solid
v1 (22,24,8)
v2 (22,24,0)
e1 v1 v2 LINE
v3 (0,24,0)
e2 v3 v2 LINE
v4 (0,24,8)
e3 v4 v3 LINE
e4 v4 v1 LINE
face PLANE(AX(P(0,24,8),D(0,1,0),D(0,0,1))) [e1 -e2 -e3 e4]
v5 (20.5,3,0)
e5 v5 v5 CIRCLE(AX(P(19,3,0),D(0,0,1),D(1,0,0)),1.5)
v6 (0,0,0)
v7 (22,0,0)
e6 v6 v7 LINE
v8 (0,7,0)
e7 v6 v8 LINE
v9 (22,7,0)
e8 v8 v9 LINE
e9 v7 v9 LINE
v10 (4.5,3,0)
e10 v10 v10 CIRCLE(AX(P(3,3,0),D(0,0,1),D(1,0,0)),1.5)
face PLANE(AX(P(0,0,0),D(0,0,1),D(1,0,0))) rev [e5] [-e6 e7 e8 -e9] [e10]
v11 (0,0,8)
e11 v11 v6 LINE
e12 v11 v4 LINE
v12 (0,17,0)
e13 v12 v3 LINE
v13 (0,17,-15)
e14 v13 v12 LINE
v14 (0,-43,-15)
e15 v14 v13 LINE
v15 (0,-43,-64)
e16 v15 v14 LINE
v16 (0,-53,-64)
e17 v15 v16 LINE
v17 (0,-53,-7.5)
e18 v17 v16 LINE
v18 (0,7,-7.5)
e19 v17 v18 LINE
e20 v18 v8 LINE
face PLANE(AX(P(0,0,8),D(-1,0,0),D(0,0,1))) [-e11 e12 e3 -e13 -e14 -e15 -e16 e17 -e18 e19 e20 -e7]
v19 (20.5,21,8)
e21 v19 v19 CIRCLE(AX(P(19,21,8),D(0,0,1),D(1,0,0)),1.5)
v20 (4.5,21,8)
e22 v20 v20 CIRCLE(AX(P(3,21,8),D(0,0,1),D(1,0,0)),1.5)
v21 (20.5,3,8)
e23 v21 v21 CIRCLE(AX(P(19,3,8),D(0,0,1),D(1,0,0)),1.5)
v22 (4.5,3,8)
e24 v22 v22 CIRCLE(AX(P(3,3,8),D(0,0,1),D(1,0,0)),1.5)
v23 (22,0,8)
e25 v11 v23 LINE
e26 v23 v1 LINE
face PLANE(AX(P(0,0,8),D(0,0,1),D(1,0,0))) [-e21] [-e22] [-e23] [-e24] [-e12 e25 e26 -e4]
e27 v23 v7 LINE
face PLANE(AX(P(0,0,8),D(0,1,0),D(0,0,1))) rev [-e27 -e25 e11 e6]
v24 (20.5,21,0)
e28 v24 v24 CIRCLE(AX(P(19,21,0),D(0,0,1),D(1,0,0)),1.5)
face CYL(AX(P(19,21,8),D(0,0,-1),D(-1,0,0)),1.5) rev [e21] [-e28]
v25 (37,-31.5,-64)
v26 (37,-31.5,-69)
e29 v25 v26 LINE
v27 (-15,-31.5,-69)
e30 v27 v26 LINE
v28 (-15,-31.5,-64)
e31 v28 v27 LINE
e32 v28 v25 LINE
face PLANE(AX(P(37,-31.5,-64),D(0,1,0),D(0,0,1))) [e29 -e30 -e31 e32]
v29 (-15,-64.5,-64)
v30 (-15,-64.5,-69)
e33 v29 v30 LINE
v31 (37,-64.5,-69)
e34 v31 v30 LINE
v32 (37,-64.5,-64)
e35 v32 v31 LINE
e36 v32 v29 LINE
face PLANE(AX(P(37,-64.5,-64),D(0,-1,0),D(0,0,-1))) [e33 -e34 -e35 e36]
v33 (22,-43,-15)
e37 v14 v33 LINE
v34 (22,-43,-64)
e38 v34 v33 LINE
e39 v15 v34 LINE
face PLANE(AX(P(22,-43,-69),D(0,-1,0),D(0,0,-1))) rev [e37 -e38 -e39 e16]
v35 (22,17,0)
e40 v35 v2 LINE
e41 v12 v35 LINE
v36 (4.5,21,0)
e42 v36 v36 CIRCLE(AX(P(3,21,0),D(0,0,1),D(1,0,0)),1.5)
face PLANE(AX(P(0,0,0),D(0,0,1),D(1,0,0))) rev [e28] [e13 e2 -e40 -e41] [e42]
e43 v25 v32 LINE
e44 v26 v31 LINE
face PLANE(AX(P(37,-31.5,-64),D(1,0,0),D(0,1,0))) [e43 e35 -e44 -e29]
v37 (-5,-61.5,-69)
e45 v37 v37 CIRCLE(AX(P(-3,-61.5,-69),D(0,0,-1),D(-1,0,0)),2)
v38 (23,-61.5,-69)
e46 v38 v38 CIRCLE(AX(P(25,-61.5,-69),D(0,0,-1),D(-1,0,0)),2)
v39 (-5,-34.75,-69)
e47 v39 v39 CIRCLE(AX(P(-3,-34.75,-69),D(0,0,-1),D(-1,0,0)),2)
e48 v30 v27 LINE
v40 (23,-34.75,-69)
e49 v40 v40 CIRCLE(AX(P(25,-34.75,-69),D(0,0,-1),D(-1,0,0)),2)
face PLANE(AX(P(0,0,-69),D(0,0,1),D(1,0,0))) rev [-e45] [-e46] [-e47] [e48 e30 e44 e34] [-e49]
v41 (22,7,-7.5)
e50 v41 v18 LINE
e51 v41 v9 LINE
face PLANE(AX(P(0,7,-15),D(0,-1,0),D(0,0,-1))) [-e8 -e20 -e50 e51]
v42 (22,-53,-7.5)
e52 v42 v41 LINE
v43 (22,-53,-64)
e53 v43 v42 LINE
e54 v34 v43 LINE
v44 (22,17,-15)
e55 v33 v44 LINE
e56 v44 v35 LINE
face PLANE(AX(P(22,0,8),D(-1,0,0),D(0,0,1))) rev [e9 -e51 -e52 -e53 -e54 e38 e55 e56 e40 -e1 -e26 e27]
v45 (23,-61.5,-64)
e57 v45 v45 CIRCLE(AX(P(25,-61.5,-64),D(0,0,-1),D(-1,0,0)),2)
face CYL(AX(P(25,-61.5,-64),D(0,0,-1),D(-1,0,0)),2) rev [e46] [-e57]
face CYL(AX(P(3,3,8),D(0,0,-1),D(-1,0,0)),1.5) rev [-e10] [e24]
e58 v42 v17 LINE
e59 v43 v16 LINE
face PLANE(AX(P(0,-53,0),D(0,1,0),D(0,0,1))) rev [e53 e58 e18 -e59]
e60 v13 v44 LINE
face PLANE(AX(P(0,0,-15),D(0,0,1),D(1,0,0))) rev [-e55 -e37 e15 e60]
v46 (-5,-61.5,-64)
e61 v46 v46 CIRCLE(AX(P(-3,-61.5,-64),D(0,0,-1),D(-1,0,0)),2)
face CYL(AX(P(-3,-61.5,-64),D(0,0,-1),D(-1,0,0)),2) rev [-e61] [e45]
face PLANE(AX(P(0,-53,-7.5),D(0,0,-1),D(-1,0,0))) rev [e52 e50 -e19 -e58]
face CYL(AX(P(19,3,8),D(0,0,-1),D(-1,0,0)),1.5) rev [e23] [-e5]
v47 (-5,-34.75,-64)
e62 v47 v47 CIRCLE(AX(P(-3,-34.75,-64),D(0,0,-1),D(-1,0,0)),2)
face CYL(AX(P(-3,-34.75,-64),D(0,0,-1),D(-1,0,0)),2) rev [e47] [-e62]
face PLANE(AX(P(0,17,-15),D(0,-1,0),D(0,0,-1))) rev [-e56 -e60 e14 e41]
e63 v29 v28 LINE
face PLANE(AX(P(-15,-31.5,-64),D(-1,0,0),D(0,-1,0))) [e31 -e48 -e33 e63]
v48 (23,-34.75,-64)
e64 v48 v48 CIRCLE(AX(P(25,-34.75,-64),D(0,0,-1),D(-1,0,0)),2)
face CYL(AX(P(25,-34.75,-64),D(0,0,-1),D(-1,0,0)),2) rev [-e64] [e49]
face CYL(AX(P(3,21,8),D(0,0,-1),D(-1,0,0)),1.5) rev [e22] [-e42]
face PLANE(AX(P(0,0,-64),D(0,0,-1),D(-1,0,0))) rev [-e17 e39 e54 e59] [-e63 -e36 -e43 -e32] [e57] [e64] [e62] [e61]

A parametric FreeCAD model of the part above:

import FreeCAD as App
import Part
import Sketcher
Q = App.Units.Quantity

doc = App.newDocument("Part")
body = doc.addObject("PartDesign::Body", "Body")

sketch1 = body.newObject("Sketcher::SketchObject", "Sketch")
sketch1.AttachmentSupport = (doc.getObject("XY_Plane"), [""])
sketch1.MapMode = "FlatFace"
sketch1.addGeometry([
    Part.LineSegment(App.Vector(0, 24, 0), App.Vector(0, 0, 0)),
    Part.LineSegment(App.Vector(0, 0, 0), App.Vector(22, 0, 0)),
    Part.LineSegment(App.Vector(22, 0, 0), App.Vector(22, 24, 0)),
    Part.LineSegment(App.Vector(22, 24, 0), App.Vector(0, 24, 0)),
    Part.Circle(App.Vector(3, 21, 0), App.Vector(0, 0, 1), 1.5),
    Part.Circle(App.Vector(19, 21, 0), App.Vector(0, 0, 1), 1.5),
    Part.Circle(App.Vector(19, 3, 0), App.Vector(0, 0, 1), 1.5),
    Part.Circle(App.Vector(3, 3, 0), App.Vector(0, 0, 1), 1.5),
], False)
sketch1.addConstraint([
    Sketcher.Constraint("Coincident", 0, 2, 1, 1),
    Sketcher.Constraint("Coincident", 1, 2, 2, 1),
    Sketcher.Constraint("Coincident", 2, 2, 3, 1),
    Sketcher.Constraint("Coincident", 3, 2, 0, 1),
    Sketcher.Constraint("Vertical", 0),
    Sketcher.Constraint("Horizontal", 1),
    Sketcher.Constraint("Vertical", 2),
    Sketcher.Constraint("Horizontal", 3),
    Sketcher.Constraint("Coincident", 0, 2, -1, 1),
    Sketcher.Constraint("Equal", 4, 5),
    Sketcher.Constraint("Equal", 5, 6),
    Sketcher.Constraint("Equal", 6, 7),
    Sketcher.Constraint("Horizontal", 4, 3, 5, 3),
    Sketcher.Constraint("Horizontal", 6, 3, 7, 3),
    Sketcher.Constraint("Vertical", 5, 3, 6, 3),
    Sketcher.Constraint("Vertical", 4, 3, 7, 3),
    Sketcher.Constraint("Diameter", 4, Q("3 mm")),
    Sketcher.Constraint("DistanceX", 1, 1, 1, 2, Q("22 mm")),
    Sketcher.Constraint("DistanceY", 0, 2, 0, 1, Q("24 mm")),
    Sketcher.Constraint("DistanceX", -1, 1, 4, 3, Q("3 mm")),
    Sketcher.Constraint("DistanceY", -1, 1, 4, 3, Q("21 mm")),
    Sketcher.Constraint("DistanceX", -1, 1, 5, 3, Q("19 mm")),
    Sketcher.Constraint("DistanceY", -1, 1, 6, 3, Q("3 mm")),
])
pad1 = body.newObject("PartDesign::Pad", "Pad")
pad1.Profile = sketch1
pad1.Length = 8

sketch2 = body.newObject("Sketcher::SketchObject", "Sketch001")
sketch2.AttachmentSupport = (doc.getObject("XY_Plane"), [""])
sketch2.MapMode = "FlatFace"
sketch2.addGeometry([
    Part.LineSegment(App.Vector(0, 17, 0), App.Vector(0, 7, 0)),
    Part.LineSegment(App.Vector(0, 7, 0), App.Vector(22, 7, 0)),
    Part.LineSegment(App.Vector(22, 7, 0), App.Vector(22, 17, 0)),
    Part.LineSegment(App.Vector(22, 17, 0), App.Vector(0, 17, 0)),
], False)
sketch2.addConstraint([
    Sketcher.Constraint("Coincident", 0, 2, 1, 1),
    Sketcher.Constraint("Coincident", 1, 2, 2, 1),
    Sketcher.Constraint("Coincident", 2, 2, 3, 1),
    Sketcher.Constraint("Coincident", 3, 2, 0, 1),
    Sketcher.Constraint("Vertical", 0),
    Sketcher.Constraint("Horizontal", 1),
    Sketcher.Constraint("Vertical", 2),
    Sketcher.Constraint("Horizontal", 3),
    Sketcher.Constraint("PointOnObject", 0, 2, -2),
    Sketcher.Constraint("DistanceX", 1, 1, 1, 2, Q("22 mm")),
    Sketcher.Constraint("DistanceY", 0, 2, 0, 1, Q("10 mm")),
    Sketcher.Constraint("DistanceY", -1, 1, 0, 2, Q("7 mm")),
])
pad2 = body.newObject("PartDesign::Pad", "Pad001")
pad2.Profile = sketch2
pad2.Length = 15
pad2.Reversed = True

sketch3 = body.newObject("Sketcher::SketchObject", "Sketch002")
sketch3.AttachmentSupport = (doc.getObject("XZ_Plane"), [""])
sketch3.MapMode = "FlatFace"
sketch3.AttachmentOffset = App.Placement(App.Vector(0, 0, -7), App.Rotation())
sketch3.addGeometry([
    Part.LineSegment(App.Vector(0, -7.5, 0), App.Vector(0, -15, 0)),
    Part.LineSegment(App.Vector(0, -15, 0), App.Vector(22, -15, 0)),
    Part.LineSegment(App.Vector(22, -15, 0), App.Vector(22, -7.5, 0)),
    Part.LineSegment(App.Vector(22, -7.5, 0), App.Vector(0, -7.5, 0)),
], False)
sketch3.addConstraint([
    Sketcher.Constraint("Coincident", 0, 2, 1, 1),
    Sketcher.Constraint("Coincident", 1, 2, 2, 1),
    Sketcher.Constraint("Coincident", 2, 2, 3, 1),
    Sketcher.Constraint("Coincident", 3, 2, 0, 1),
    Sketcher.Constraint("Vertical", 0),
    Sketcher.Constraint("Horizontal", 1),
    Sketcher.Constraint("Vertical", 2),
    Sketcher.Constraint("Horizontal", 3),
    Sketcher.Constraint("PointOnObject", 0, 2, -2),
    Sketcher.Constraint("DistanceX", 1, 1, 1, 2, Q("22 mm")),
    Sketcher.Constraint("DistanceY", 0, 2, 0, 1, Q("7.5 mm")),
    Sketcher.Constraint("DistanceY", 0, 2, -1, 1, Q("15 mm")),
])
pad3 = body.newObject("PartDesign::Pad", "Pad002")
pad3.Profile = sketch3
pad3.Length = 60

sketch4 = body.newObject("Sketcher::SketchObject", "Sketch003")
sketch4.AttachmentSupport = (doc.getObject("XY_Plane"), [""])
sketch4.MapMode = "FlatFace"
sketch4.AttachmentOffset = App.Placement(App.Vector(0, 0, -15), App.Rotation())
sketch4.addGeometry([
    Part.LineSegment(App.Vector(22, -43, 0), App.Vector(22, -53, 0)),
    Part.LineSegment(App.Vector(22, -53, 0), App.Vector(0, -53, 0)),
    Part.LineSegment(App.Vector(0, -53, 0), App.Vector(0, -43, 0)),
    Part.LineSegment(App.Vector(0, -43, 0), App.Vector(22, -43, 0)),
], False)
sketch4.addConstraint([
    Sketcher.Constraint("Coincident", 0, 2, 1, 1),
    Sketcher.Constraint("Coincident", 1, 2, 2, 1),
    Sketcher.Constraint("Coincident", 2, 2, 3, 1),
    Sketcher.Constraint("Coincident", 3, 2, 0, 1),
    Sketcher.Constraint("Vertical", 0),
    Sketcher.Constraint("Horizontal", 1),
    Sketcher.Constraint("Vertical", 2),
    Sketcher.Constraint("Horizontal", 3),
    Sketcher.Constraint("PointOnObject", 1, 2, -2),
    Sketcher.Constraint("DistanceX", 1, 2, 1, 1, Q("22 mm")),
    Sketcher.Constraint("DistanceY", 0, 2, 0, 1, Q("10 mm")),
    Sketcher.Constraint("DistanceY", 0, 2, -1, 1, Q("53 mm")),
])
pad4 = body.newObject("PartDesign::Pad", "Pad003")
pad4.Profile = sketch4
pad4.Length = 54
pad4.Reversed = True

sketch5 = body.newObject("Sketcher::SketchObject", "Sketch004")
sketch5.AttachmentSupport = (doc.getObject("XY_Plane"), [""])
sketch5.MapMode = "FlatFace"
sketch5.AttachmentOffset = App.Placement(App.Vector(0, 0, -69), App.Rotation())
sketch5.addGeometry([
    Part.LineSegment(App.Vector(37, -31.5, 0), App.Vector(37, -64.5, 0)),
    Part.LineSegment(App.Vector(37, -64.5, 0), App.Vector(-15, -64.5, 0)),
    Part.LineSegment(App.Vector(-15, -64.5, 0), App.Vector(-15, -31.5, 0)),
    Part.LineSegment(App.Vector(-15, -31.5, 0), App.Vector(37, -31.5, 0)),
], False)
sketch5.addConstraint([
    Sketcher.Constraint("Coincident", 0, 2, 1, 1),
    Sketcher.Constraint("Coincident", 1, 2, 2, 1),
    Sketcher.Constraint("Coincident", 2, 2, 3, 1),
    Sketcher.Constraint("Coincident", 3, 2, 0, 1),
    Sketcher.Constraint("Vertical", 0),
    Sketcher.Constraint("Horizontal", 1),
    Sketcher.Constraint("Vertical", 2),
    Sketcher.Constraint("Horizontal", 3),
    Sketcher.Constraint("DistanceX", 1, 2, 1, 1, Q("52 mm")),
    Sketcher.Constraint("DistanceY", 0, 2, 0, 1, Q("33 mm")),
    Sketcher.Constraint("DistanceX", -1, 1, 0, 2, Q("37 mm")),
    Sketcher.Constraint("DistanceY", 0, 2, -1, 1, Q("64.5 mm")),
])
pad5 = body.newObject("PartDesign::Pad", "Pad004")
pad5.Profile = sketch5
pad5.Length = 5

sketch6 = body.newObject("Sketcher::SketchObject", "Sketch005")
sketch6.AttachmentSupport = (doc.getObject("XY_Plane"), [""])
sketch6.MapMode = "FlatFace"
sketch6.AttachmentOffset = App.Placement(App.Vector(0, 0, -69), App.Rotation())
sketch6.addGeometry([
    Part.Circle(App.Vector(25, -34.75, 0), App.Vector(0, 0, 1), 2),
    Part.Circle(App.Vector(25, -61.5, 0), App.Vector(0, 0, 1), 2),
    Part.Circle(App.Vector(-3, -34.75, 0), App.Vector(0, 0, 1), 2),
    Part.Circle(App.Vector(-3, -61.5, 0), App.Vector(0, 0, 1), 2),
], False)
sketch6.addConstraint([
    Sketcher.Constraint("Equal", 0, 1),
    Sketcher.Constraint("Equal", 1, 2),
    Sketcher.Constraint("Equal", 2, 3),
    Sketcher.Constraint("Horizontal", 0, 3, 2, 3),
    Sketcher.Constraint("Horizontal", 1, 3, 3, 3),
    Sketcher.Constraint("Vertical", 0, 3, 1, 3),
    Sketcher.Constraint("Vertical", 2, 3, 3, 3),
    Sketcher.Constraint("Diameter", 0, Q("4 mm")),
    Sketcher.Constraint("DistanceX", -1, 1, 0, 3, Q("25 mm")),
    Sketcher.Constraint("DistanceX", 2, 3, -1, 1, Q("3 mm")),
    Sketcher.Constraint("DistanceY", 1, 3, -1, 1, Q("61.5 mm")),
    Sketcher.Constraint("DistanceY", 0, 3, -1, 1, Q("34.75 mm")),
])
pocket1 = body.newObject("PartDesign::Pocket", "Pocket")
pocket1.Profile = sketch6
pocket1.Length = 5
pocket1.Reversed = True

doc.recompute()
